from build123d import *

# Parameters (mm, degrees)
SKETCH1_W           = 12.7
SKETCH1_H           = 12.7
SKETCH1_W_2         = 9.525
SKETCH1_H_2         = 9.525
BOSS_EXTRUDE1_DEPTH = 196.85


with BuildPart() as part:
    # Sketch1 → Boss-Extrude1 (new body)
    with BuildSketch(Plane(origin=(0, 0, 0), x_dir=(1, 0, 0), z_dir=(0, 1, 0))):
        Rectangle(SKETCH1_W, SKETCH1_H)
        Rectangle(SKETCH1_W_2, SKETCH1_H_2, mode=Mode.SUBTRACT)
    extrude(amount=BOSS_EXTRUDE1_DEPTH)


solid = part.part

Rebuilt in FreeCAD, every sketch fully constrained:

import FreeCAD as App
import Part
import Sketcher
Q = App.Units.Quantity

doc = App.newDocument("Part")
body = doc.addObject("PartDesign::Body", "Body")

# Sketch on XZ plane
sketch1 = body.newObject("Sketcher::SketchObject", "Sketch")
sketch1.AttachmentSupport = (doc.getObject("XZ_Plane"), [""])
sketch1.MapMode = "FlatFace"
sketch1.addGeometry([
    Part.LineSegment(App.Vector(-6, -6, 0), App.Vector(-6, 6, 0)),  # 0
    Part.LineSegment(App.Vector(-6, 6, 0), App.Vector(6, 6, 0)),  # 1
    Part.LineSegment(App.Vector(6, 6, 0), App.Vector(6, -6, 0)),  # 2
    Part.LineSegment(App.Vector(6, -6, 0), App.Vector(-6, -6, 0)),  # 3
    Part.LineSegment(App.Vector(5, 5, 0), App.Vector(-5, 5, 0)),  # 4
    Part.LineSegment(App.Vector(-5, 5, 0), App.Vector(-5, -5, 0)),  # 5
    Part.LineSegment(App.Vector(-5, -5, 0), App.Vector(5, -5, 0)),  # 6
    Part.LineSegment(App.Vector(5, -5, 0), App.Vector(5, 5, 0)),  # 7
], False)
sketch1.addConstraint([
    Sketcher.Constraint("Coincident", 0, 2, 1, 1),
    Sketcher.Constraint("Coincident", 1, 2, 2, 1),
    Sketcher.Constraint("Coincident", 2, 2, 3, 1),
    Sketcher.Constraint("Coincident", 3, 2, 0, 1),
    Sketcher.Constraint("Coincident", 4, 2, 5, 1),
    Sketcher.Constraint("Coincident", 5, 2, 6, 1),
    Sketcher.Constraint("Coincident", 6, 2, 7, 1),
    Sketcher.Constraint("Coincident", 7, 2, 4, 1),
    Sketcher.Constraint("Vertical", 0),
    Sketcher.Constraint("Horizontal", 1),
    Sketcher.Constraint("Vertical", 2),
    Sketcher.Constraint("Horizontal", 3),
    Sketcher.Constraint("Horizontal", 4),
    Sketcher.Constraint("Vertical", 5),
    Sketcher.Constraint("Horizontal", 6),
    Sketcher.Constraint("Vertical", 7),
    Sketcher.Constraint("Symmetric", 0, 2, 2, 2, -1, 1),
    Sketcher.Constraint("Symmetric", 4, 2, 6, 2, -1, 1),
    Sketcher.Constraint("Equal", 3, 0),
    Sketcher.Constraint("Equal", 6, 5),
    Sketcher.Constraint("DistanceX", 1, 1, 1, 2, Q("0.5 in")),
    Sketcher.Constraint("DistanceX", 4, 2, 4, 1, Q("0.375 in")),
])
pad1 = body.newObject("PartDesign::Pad", "Pad")
pad1.Profile = sketch1
pad1.Length = Q("7.75 in")
pad1.Reversed = True

doc.recompute()
